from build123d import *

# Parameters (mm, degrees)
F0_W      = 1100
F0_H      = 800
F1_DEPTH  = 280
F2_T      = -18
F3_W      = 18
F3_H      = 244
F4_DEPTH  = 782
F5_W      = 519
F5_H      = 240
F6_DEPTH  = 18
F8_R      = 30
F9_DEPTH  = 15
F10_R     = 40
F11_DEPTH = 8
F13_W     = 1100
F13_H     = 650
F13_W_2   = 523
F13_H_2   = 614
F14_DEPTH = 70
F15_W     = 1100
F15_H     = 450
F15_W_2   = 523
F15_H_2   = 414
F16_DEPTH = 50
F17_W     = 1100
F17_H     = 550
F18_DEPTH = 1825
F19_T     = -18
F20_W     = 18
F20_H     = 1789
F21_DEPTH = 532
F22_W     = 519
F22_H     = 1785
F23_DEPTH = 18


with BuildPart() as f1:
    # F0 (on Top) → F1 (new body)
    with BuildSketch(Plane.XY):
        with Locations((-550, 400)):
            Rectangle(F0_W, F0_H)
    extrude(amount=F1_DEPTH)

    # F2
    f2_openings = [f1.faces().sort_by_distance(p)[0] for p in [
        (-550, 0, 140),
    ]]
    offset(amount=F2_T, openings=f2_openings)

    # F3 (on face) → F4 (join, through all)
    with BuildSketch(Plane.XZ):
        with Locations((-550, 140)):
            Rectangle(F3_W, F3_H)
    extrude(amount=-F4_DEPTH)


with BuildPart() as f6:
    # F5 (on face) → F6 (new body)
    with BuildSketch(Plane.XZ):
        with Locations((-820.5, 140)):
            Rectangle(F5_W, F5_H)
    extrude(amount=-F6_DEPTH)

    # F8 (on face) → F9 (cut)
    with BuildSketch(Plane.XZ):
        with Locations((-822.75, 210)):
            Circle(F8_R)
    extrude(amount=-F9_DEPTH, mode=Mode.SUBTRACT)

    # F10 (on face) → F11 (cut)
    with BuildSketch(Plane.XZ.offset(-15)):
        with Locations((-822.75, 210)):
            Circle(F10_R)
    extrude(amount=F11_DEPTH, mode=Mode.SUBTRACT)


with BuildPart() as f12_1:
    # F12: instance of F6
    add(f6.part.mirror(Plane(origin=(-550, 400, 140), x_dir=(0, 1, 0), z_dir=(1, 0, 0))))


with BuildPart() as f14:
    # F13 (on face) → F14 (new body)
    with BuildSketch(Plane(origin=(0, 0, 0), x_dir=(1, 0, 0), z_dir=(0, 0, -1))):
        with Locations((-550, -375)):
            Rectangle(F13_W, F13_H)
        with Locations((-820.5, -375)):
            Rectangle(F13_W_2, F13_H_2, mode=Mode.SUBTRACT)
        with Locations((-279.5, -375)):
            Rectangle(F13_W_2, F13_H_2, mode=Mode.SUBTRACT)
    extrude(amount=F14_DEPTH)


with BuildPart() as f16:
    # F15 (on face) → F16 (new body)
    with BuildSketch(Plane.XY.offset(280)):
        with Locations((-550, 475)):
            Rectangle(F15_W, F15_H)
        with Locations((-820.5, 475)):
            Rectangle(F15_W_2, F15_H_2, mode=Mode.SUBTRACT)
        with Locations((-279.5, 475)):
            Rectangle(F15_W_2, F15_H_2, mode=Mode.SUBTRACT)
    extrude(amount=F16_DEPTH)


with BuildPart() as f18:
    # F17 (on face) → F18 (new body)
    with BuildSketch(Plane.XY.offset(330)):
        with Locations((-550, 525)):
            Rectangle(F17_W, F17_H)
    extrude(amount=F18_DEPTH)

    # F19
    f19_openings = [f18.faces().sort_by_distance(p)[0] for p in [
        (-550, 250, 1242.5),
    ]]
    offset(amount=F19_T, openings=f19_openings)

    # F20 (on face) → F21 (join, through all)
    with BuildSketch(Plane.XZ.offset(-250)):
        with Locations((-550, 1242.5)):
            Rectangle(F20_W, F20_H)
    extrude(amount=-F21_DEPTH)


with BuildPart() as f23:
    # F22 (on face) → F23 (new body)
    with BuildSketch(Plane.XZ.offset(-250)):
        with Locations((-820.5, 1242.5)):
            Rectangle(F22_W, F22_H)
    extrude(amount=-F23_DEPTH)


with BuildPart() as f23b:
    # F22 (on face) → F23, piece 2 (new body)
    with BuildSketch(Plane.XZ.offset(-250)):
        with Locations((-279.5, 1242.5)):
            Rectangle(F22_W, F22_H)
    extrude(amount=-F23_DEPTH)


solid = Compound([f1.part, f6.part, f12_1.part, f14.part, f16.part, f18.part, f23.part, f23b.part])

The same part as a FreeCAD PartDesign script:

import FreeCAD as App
import Part
import Sketcher
Q = App.Units.Quantity


def faces_at(feature, points):
    """Names of the faces that lie closest to the given points."""
    faces = feature.Shape.Faces
    near = lambda p: min(range(len(faces)), key=lambda i: faces[i].distToShape(Part.Vertex(*p))[0])
    return sorted({f"Face{near(p) + 1}" for p in points})


def add_polygon(sketch, points):
    """Adds a closed chain of lines whose ends are joined by coincident constraints."""
    first, n = sketch.GeometryCount, len(points)
    for a, b in zip(points, points[1:] + points[:1]):
        sketch.addGeometry(Part.LineSegment(App.Vector(*a, 0), App.Vector(*b, 0)), False)
    for i in range(n):
        sketch.addConstraint(Sketcher.Constraint("Coincident", first + i, 2, first + (i + 1) % n, 1))

doc = App.newDocument("Part")
body = doc.addObject("PartDesign::Body", "Body")

sketch1 = body.newObject("Sketcher::SketchObject", "Sketch")
sketch1.AttachmentSupport = (doc.getObject("XY_Plane"), [""])
sketch1.MapMode = "FlatFace"
add_polygon(sketch1, [(-1100, 800), (-1100, 0), (0, 0), (0, 800)])
sketch1.addConstraint(Sketcher.Constraint("Vertical", 0))
sketch1.addConstraint(Sketcher.Constraint("Horizontal", 1))
sketch1.addConstraint(Sketcher.Constraint("Vertical", 2))
sketch1.addConstraint(Sketcher.Constraint("Horizontal", 3))
sketch1.addConstraint(Sketcher.Constraint("Coincident", 1, 2, -1, 1))
sketch1.addConstraint(Sketcher.Constraint("DistanceX", 1, 1, 1, 2, Q("1100 mm")))
sketch1.addConstraint(Sketcher.Constraint("DistanceY", 0, 2, 0, 1, Q("800 mm")))
pad1 = body.newObject("PartDesign::Pad", "Pad")
pad1.Profile = sketch1
pad1.Length = 280
doc.recompute()

thickness = body.newObject("PartDesign::Thickness", "Thickness")
thickness.Base = (pad1, faces_at(pad1, [(-550, 0, 140)]))
thickness.Value = 18
thickness.Reversed = True
thickness.Join = "Arc"

sketch2 = body.newObject("Sketcher::SketchObject", "Sketch001")
sketch2.AttachmentSupport = (doc.getObject("XZ_Plane"), [""])
sketch2.MapMode = "FlatFace"
add_polygon(sketch2, [(-559, 262), (-559, 18), (-541, 18), (-541, 262)])
sketch2.addConstraint(Sketcher.Constraint("Vertical", 0))
sketch2.addConstraint(Sketcher.Constraint("Horizontal", 1))
sketch2.addConstraint(Sketcher.Constraint("Vertical", 2))
sketch2.addConstraint(Sketcher.Constraint("Horizontal", 3))
sketch2.addConstraint(Sketcher.Constraint("DistanceX", 1, 1, 1, 2, Q("18 mm")))
sketch2.addConstraint(Sketcher.Constraint("DistanceY", 0, 2, 0, 1, Q("244 mm")))
sketch2.addConstraint(Sketcher.Constraint("DistanceX", 0, 2, -1, 1, Q("559 mm")))
sketch2.addConstraint(Sketcher.Constraint("DistanceY", -1, 1, 0, 2, Q("18 mm")))
pad2 = body.newObject("PartDesign::Pad", "Pad001")
pad2.Profile = sketch2
pad2.Type = "UpToLast"
pad2.Reversed = True
body2 = doc.addObject("PartDesign::Body", "Body001")

sketch3 = body2.newObject("Sketcher::SketchObject", "Sketch002")
sketch3.AttachmentSupport = (doc.getObject("XZ_Plane001"), [""])
sketch3.MapMode = "FlatFace"
add_polygon(sketch3, [(-1080, 260), (-1080, 20), (-561, 20), (-561, 260)])
sketch3.addConstraint(Sketcher.Constraint("Vertical", 0))
sketch3.addConstraint(Sketcher.Constraint("Horizontal", 1))
sketch3.addConstraint(Sketcher.Constraint("Vertical", 2))
sketch3.addConstraint(Sketcher.Constraint("Horizontal", 3))
sketch3.addConstraint(Sketcher.Constraint("DistanceX", 1, 1, 1, 2, Q("519 mm")))
sketch3.addConstraint(Sketcher.Constraint("DistanceY", 0, 2, 0, 1, Q("240 mm")))
sketch3.addConstraint(Sketcher.Constraint("DistanceX", 0, 2, -1, 1, Q("1080 mm")))
sketch3.addConstraint(Sketcher.Constraint("DistanceY", -1, 1, 0, 2, Q("20 mm")))
pad3 = body2.newObject("PartDesign::Pad", "Pad002")
pad3.Profile = sketch3
pad3.Length = 18
pad3.Reversed = True

sketch4 = body2.newObject("Sketcher::SketchObject", "Sketch003")
sketch4.AttachmentSupport = (doc.getObject("XZ_Plane001"), [""])
sketch4.MapMode = "FlatFace"
sketch4.addGeometry(Part.Circle(App.Vector(-822.75, 210, 0), App.Vector(0, 0, 1), 30), False)
sketch4.addConstraint(Sketcher.Constraint("Diameter", 0, Q("60 mm")))
sketch4.addConstraint(Sketcher.Constraint("DistanceY", -1, 1, 0, 3, Q("210 mm")))
sketch4.addConstraint(Sketcher.Constraint("DistanceX", 0, 3, -1, 1, Q("822.75 mm")))
pocket1 = body2.newObject("PartDesign::Pocket", "Pocket")
pocket1.Profile = sketch4
pocket1.Length = 15

sketch5 = body2.newObject("Sketcher::SketchObject", "Sketch004")
sketch5.AttachmentSupport = (doc.getObject("XZ_Plane001"), [""])
sketch5.MapMode = "FlatFace"
sketch5.AttachmentOffset = App.Placement(App.Vector(0, 0, -15), App.Rotation())
sketch5.addGeometry(Part.Circle(App.Vector(-822.75, 210, 0), App.Vector(0, 0, 1), 40), False)
sketch5.addConstraint(Sketcher.Constraint("Diameter", 0, Q("80 mm")))
sketch5.addConstraint(Sketcher.Constraint("DistanceY", -1, 1, 0, 3, Q("210 mm")))
sketch5.addConstraint(Sketcher.Constraint("DistanceX", 0, 3, -1, 1, Q("822.75 mm")))
pocket2 = body2.newObject("PartDesign::Pocket", "Pocket001")
pocket2.Profile = sketch5
pocket2.Length = 8
pocket2.Reversed = True
body3 = doc.addObject("PartDesign::Body", "Body002")
doc.recompute()

mirroring = doc.addObject("Part::Mirroring", "Mirroring")
mirroring.Source = body2
mirroring.Base = App.Vector(-550, 400, 140)
mirroring.Normal = App.Vector(1, 0, 0)
body3.BaseFeature = mirroring
doc.recompute()
body4 = doc.addObject("PartDesign::Body", "Body003")

sketch6 = body4.newObject("Sketcher::SketchObject", "Sketch005")
sketch6.AttachmentSupport = (doc.getObject("XY_Plane003"), [""])
sketch6.MapMode = "FlatFace"
add_polygon(sketch6, [(-1100, 50), (-1100, 700), (0, 700), (0, 50)])
add_polygon(sketch6, [(-559, 682), (-1082, 682), (-1082, 68), (-559, 68)])
add_polygon(sketch6, [(-18, 682), (-541, 682), (-541, 68), (-18, 68)])
sketch6.addConstraint(Sketcher.Constraint("Vertical", 0))
sketch6.addConstraint(Sketcher.Constraint("Horizontal", 1))
sketch6.addConstraint(Sketcher.Constraint("Vertical", 2))
sketch6.addConstraint(Sketcher.Constraint("Horizontal", 3))
sketch6.addConstraint(Sketcher.Constraint("Horizontal", 4))
sketch6.addConstraint(Sketcher.Constraint("Vertical", 5))
sketch6.addConstraint(Sketcher.Constraint("Horizontal", 6))
sketch6.addConstraint(Sketcher.Constraint("Vertical", 7))
sketch6.addConstraint(Sketcher.Constraint("Horizontal", 8))
sketch6.addConstraint(Sketcher.Constraint("Vertical", 9))
sketch6.addConstraint(Sketcher.Constraint("Horizontal", 10))
sketch6.addConstraint(Sketcher.Constraint("Vertical", 11))
sketch6.addConstraint(Sketcher.Constraint("PointOnObject", 1, 2, -2))
sketch6.addConstraint(Sketcher.Constraint("Horizontal", 7, 2, 8, 2))
sketch6.addConstraint(Sketcher.Constraint("Horizontal", 6, 2, 9, 2))
sketch6.addConstraint(Sketcher.Constraint("Equal", 6, 8))
sketch6.addConstraint(Sketcher.Constraint("DistanceX", 1, 1, 1, 2, Q("1100 mm")))
sketch6.addConstraint(Sketcher.Constraint("DistanceX", 4, 2, 4, 1, Q("523 mm")))
sketch6.addConstraint(Sketcher.Constraint("DistanceY", 0, 1, 0, 2, Q("650 mm")))
sketch6.addConstraint(Sketcher.Constraint("DistanceY", 5, 2, 5, 1, Q("614 mm")))
sketch6.addConstraint(Sketcher.Constraint("DistanceY", -1, 1, 0, 2, Q("700 mm")))
sketch6.addConstraint(Sketcher.Constraint("DistanceX", 4, 2, -1, 1, Q("1082 mm")))
sketch6.addConstraint(Sketcher.Constraint("DistanceY", -1, 1, 4, 2, Q("682 mm")))
sketch6.addConstraint(Sketcher.Constraint("DistanceX", 8, 2, -1, 1, Q("541 mm")))
pad4 = body4.newObject("PartDesign::Pad", "Pad003")
pad4.Profile = sketch6
pad4.Length = 70
pad4.Reversed = True
body5 = doc.addObject("PartDesign::Body", "Body004")

sketch7 = body5.newObject("Sketcher::SketchObject", "Sketch006")
sketch7.AttachmentSupport = (doc.getObject("XY_Plane004"), [""])
sketch7.MapMode = "FlatFace"
sketch7.AttachmentOffset = App.Placement(App.Vector(0, 0, 280), App.Rotation())
add_polygon(sketch7, [(-1100, 700), (-1100, 250), (0, 250), (0, 700)])
add_polygon(sketch7, [(-559, 268), (-1082, 268), (-1082, 682), (-559, 682)])
add_polygon(sketch7, [(-18, 268), (-541, 268), (-541, 682), (-18, 682)])
sketch7.addConstraint(Sketcher.Constraint("Vertical", 0))
sketch7.addConstraint(Sketcher.Constraint("Horizontal", 1))
sketch7.addConstraint(Sketcher.Constraint("Vertical", 2))
sketch7.addConstraint(Sketcher.Constraint("Horizontal", 3))
sketch7.addConstraint(Sketcher.Constraint("Horizontal", 4))
sketch7.addConstraint(Sketcher.Constraint("Vertical", 5))
sketch7.addConstraint(Sketcher.Constraint("Horizontal", 6))
sketch7.addConstraint(Sketcher.Constraint("Vertical", 7))
sketch7.addConstraint(Sketcher.Constraint("Horizontal", 8))
sketch7.addConstraint(Sketcher.Constraint("Vertical", 9))
sketch7.addConstraint(Sketcher.Constraint("Horizontal", 10))
sketch7.addConstraint(Sketcher.Constraint("Vertical", 11))
sketch7.addConstraint(Sketcher.Constraint("PointOnObject", 1, 2, -2))
sketch7.addConstraint(Sketcher.Constraint("Horizontal", 7, 2, 8, 2))
sketch7.addConstraint(Sketcher.Constraint("Horizontal", 6, 2, 9, 2))
sketch7.addConstraint(Sketcher.Constraint("Equal", 6, 8))
sketch7.addConstraint(Sketcher.Constraint("DistanceX", 1, 1, 1, 2, Q("1100 mm")))
sketch7.addConstraint(Sketcher.Constraint("DistanceX", 4, 2, 4, 1, Q("523 mm")))
sketch7.addConstraint(Sketcher.Constraint("DistanceY", 0, 2, 0, 1, Q("450 mm")))
sketch7.addConstraint(Sketcher.Constraint("DistanceY", 5, 1, 5, 2, Q("414 mm")))
sketch7.addConstraint(Sketcher.Constraint("DistanceY", -1, 1, 0, 2, Q("250 mm")))
sketch7.addConstraint(Sketcher.Constraint("DistanceX", 4, 2, -1, 1, Q("1082 mm")))
sketch7.addConstraint(Sketcher.Constraint("DistanceY", -1, 1, 4, 2, Q("268 mm")))
sketch7.addConstraint(Sketcher.Constraint("DistanceX", 8, 2, -1, 1, Q("541 mm")))
pad5 = body5.newObject("PartDesign::Pad", "Pad004")
pad5.Profile = sketch7
pad5.Length = 50
body6 = doc.addObject("PartDesign::Body", "Body005")

sketch8 = body6.newObject("Sketcher::SketchObject", "Sketch007")
sketch8.AttachmentSupport = (doc.getObject("XY_Plane005"), [""])
sketch8.MapMode = "FlatFace"
sketch8.AttachmentOffset = App.Placement(App.Vector(0, 0, 330), App.Rotation())
add_polygon(sketch8, [(-1100, 800), (-1100, 250), (0, 250), (0, 800)])
sketch8.addConstraint(Sketcher.Constraint("Vertical", 0))
sketch8.addConstraint(Sketcher.Constraint("Horizontal", 1))
sketch8.addConstraint(Sketcher.Constraint("Vertical", 2))
sketch8.addConstraint(Sketcher.Constraint("Horizontal", 3))
sketch8.addConstraint(Sketcher.Constraint("PointOnObject", 1, 2, -2))
sketch8.addConstraint(Sketcher.Constraint("DistanceX", 1, 1, 1, 2, Q("1100 mm")))
sketch8.addConstraint(Sketcher.Constraint("DistanceY", 0, 2, 0, 1, Q("550 mm")))
sketch8.addConstraint(Sketcher.Constraint("DistanceY", -1, 1, 0, 2, Q("250 mm")))
pad6 = body6.newObject("PartDesign::Pad", "Pad005")
pad6.Profile = sketch8
pad6.Length = 1825
doc.recompute()

thickness2 = body6.newObject("PartDesign::Thickness", "Thickness001")
thickness2.Base = (pad6, faces_at(pad6, [(-550, 250, 1242.5)]))
thickness2.Value = 18
thickness2.Reversed = True
thickness2.Join = "Arc"

sketch9 = body6.newObject("Sketcher::SketchObject", "Sketch008")
sketch9.AttachmentSupport = (doc.getObject("XZ_Plane005"), [""])
sketch9.MapMode = "FlatFace"
sketch9.AttachmentOffset = App.Placement(App.Vector(0, 0, -250), App.Rotation())
add_polygon(sketch9, [(-559, 2137), (-559, 348), (-541, 348), (-541, 2137)])
sketch9.addConstraint(Sketcher.Constraint("Vertical", 0))
sketch9.addConstraint(Sketcher.Constraint("Horizontal", 1))
sketch9.addConstraint(Sketcher.Constraint("Vertical", 2))
sketch9.addConstraint(Sketcher.Constraint("Horizontal", 3))
sketch9.addConstraint(Sketcher.Constraint("DistanceX", 1, 1, 1, 2, Q("18 mm")))
sketch9.addConstraint(Sketcher.Constraint("DistanceY", 0, 2, 0, 1, Q("1789 mm")))
sketch9.addConstraint(Sketcher.Constraint("DistanceX", 0, 2, -1, 1, Q("559 mm")))
sketch9.addConstraint(Sketcher.Constraint("DistanceY", -1, 1, 0, 2, Q("348 mm")))
pad7 = body6.newObject("PartDesign::Pad", "Pad006")
pad7.Profile = sketch9
pad7.Type = "UpToLast"
pad7.Reversed = True
body7 = doc.addObject("PartDesign::Body", "Body006")

sketch10 = body7.newObject("Sketcher::SketchObject", "Sketch009")
sketch10.AttachmentSupport = (doc.getObject("XZ_Plane006"), [""])
sketch10.MapMode = "FlatFace"
sketch10.AttachmentOffset = App.Placement(App.Vector(0, 0, -250), App.Rotation())
add_polygon(sketch10, [(-1080, 2135), (-1080, 350), (-561, 350), (-561, 2135)])
sketch10.addConstraint(Sketcher.Constraint("Vertical", 0))
sketch10.addConstraint(Sketcher.Constraint("Horizontal", 1))
sketch10.addConstraint(Sketcher.Constraint("Vertical", 2))
sketch10.addConstraint(Sketcher.Constraint("Horizontal", 3))
sketch10.addConstraint(Sketcher.Constraint("DistanceX", 1, 1, 1, 2, Q("519 mm")))
sketch10.addConstraint(Sketcher.Constraint("DistanceY", 0, 2, 0, 1, Q("1785 mm")))
sketch10.addConstraint(Sketcher.Constraint("DistanceX", 0, 2, -1, 1, Q("1080 mm")))
sketch10.addConstraint(Sketcher.Constraint("DistanceY", -1, 1, 0, 2, Q("350 mm")))
pad8 = body7.newObject("PartDesign::Pad", "Pad007")
pad8.Profile = sketch10
pad8.Length = 18
pad8.Reversed = True
body8 = doc.addObject("PartDesign::Body", "Body007")

sketch11 = body8.newObject("Sketcher::SketchObject", "Sketch010")
sketch11.AttachmentSupport = (doc.getObject("XZ_Plane007"), [""])
sketch11.MapMode = "FlatFace"
sketch11.AttachmentOffset = App.Placement(App.Vector(0, 0, -250), App.Rotation())
add_polygon(sketch11, [(-539, 2135), (-539, 350), (-20, 350), (-20, 2135)])
sketch11.addConstraint(Sketcher.Constraint("Vertical", 0))
sketch11.addConstraint(Sketcher.Constraint("Horizontal", 1))
sketch11.addConstraint(Sketcher.Constraint("Vertical", 2))
sketch11.addConstraint(Sketcher.Constraint("Horizontal", 3))
sketch11.addConstraint(Sketcher.Constraint("DistanceX", 1, 1, 1, 2, Q("519 mm")))
sketch11.addConstraint(Sketcher.Constraint("DistanceY", 0, 2, 0, 1, Q("1785 mm")))
sketch11.addConstraint(Sketcher.Constraint("DistanceX", 0, 2, -1, 1, Q("539 mm")))
sketch11.addConstraint(Sketcher.Constraint("DistanceY", -1, 1, 0, 2, Q("350 mm")))
pad9 = body8.newObject("PartDesign::Pad", "Pad008")
pad9.Profile = sketch11
pad9.Length = 18
pad9.Reversed = True
mirroring.Visibility = False

doc.recompute()
